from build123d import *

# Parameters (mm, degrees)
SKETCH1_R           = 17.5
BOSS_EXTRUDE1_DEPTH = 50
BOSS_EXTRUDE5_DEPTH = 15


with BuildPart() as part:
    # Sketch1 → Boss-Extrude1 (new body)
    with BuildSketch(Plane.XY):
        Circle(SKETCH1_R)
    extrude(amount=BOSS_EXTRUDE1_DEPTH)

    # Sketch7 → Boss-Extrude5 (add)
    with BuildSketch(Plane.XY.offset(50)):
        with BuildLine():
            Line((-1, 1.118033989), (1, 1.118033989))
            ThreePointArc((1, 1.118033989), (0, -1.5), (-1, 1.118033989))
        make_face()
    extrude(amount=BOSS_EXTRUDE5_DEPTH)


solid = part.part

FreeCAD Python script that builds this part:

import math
import FreeCAD as App
import Part
import Sketcher
from FreeCAD import Vector

doc = App.newDocument("Part")
body = doc.addObject("PartDesign::Body", "Body")

sketch1 = doc.addObject("Sketcher::SketchObject", "Sketch")
body.addObject(sketch1)
sketch1.AttachmentSupport = (doc.XY_Plane, [""])
sketch1.MapMode = "FlatFace"
sketch1.addGeometry(Part.Circle(Vector(0, 0, 0), Vector(0, 0, 1), 18), False)
sketch1.addConstraint([
    Sketcher.Constraint("Coincident", 0, 3, -1, 1),
    Sketcher.Constraint("Diameter", 0, 35.0),
])
pad1 = doc.addObject("PartDesign::Pad", "Pad")
body.addObject(pad1)
pad1.Profile = sketch1
pad1.Length = 50

sketch2 = doc.addObject("Sketcher::SketchObject", "Sketch001")
body.addObject(sketch2)
sketch2.AttachmentSupport = (doc.XY_Plane, [""])
sketch2.MapMode = "FlatFace"
sketch2.AttachmentOffset = App.Placement(Vector(0, 0, 50), App.Rotation())
sketch2.addGeometry([
    Part.LineSegment(Vector(1, 1.1, 0), Vector(-1, 1.1, 0)),
    Part.ArcOfCircle(Part.Circle(Vector(0, 0, 0), Vector(0, 0, 1), 1.5), math.radians(132), math.radians(408)),
], False)
sketch2.addConstraint([
    Sketcher.Constraint("Coincident", 0, 1, 1, 2),
    Sketcher.Constraint("Coincident", 1, 1, 0, 2),
    Sketcher.Constraint("Horizontal", 0),
    Sketcher.Constraint("Coincident", 1, 3, -1, 1),
    Sketcher.Constraint("Radius", 1, 1.5),
    Sketcher.Constraint("DistanceX", 0, 2, 0, 1, 2.0),
])
pad2 = doc.addObject("PartDesign::Pad", "Pad001")
body.addObject(pad2)
pad2.Profile = sketch2
pad2.Length = 15

doc.recompute()
